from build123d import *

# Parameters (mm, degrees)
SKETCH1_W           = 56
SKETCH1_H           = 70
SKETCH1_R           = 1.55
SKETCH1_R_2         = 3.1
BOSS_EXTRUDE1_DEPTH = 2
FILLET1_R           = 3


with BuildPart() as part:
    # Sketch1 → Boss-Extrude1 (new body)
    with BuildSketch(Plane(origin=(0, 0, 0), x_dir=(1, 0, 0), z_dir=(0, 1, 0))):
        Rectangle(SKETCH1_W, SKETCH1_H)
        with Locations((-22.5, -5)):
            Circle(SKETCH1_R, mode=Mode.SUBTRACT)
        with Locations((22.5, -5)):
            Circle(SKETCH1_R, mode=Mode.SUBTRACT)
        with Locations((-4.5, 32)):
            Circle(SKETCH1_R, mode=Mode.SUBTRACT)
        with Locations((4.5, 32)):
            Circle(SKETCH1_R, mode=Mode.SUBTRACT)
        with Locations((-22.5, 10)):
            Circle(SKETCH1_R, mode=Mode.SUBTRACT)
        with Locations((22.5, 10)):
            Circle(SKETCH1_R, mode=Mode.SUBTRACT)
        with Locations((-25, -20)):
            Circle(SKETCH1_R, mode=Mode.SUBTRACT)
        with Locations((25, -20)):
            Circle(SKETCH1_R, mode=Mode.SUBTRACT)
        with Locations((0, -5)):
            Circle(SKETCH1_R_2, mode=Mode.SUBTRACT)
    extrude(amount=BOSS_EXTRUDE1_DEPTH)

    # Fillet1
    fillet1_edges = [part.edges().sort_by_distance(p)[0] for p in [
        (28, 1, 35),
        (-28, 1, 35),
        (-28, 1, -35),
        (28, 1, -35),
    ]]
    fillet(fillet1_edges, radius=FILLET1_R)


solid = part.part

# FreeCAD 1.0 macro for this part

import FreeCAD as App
import Part
import Sketcher

V = App.Vector
Q = App.Units.Quantity


def edges_at(feature, points):
    """Names of the edges that pass closest to the given points."""
    edges = feature.Shape.Edges
    near = lambda p: min(range(len(edges)), key=lambda i: edges[i].distToShape(Part.Vertex(*p))[0])
    return sorted({f"Edge{near(p) + 1}" for p in points})

doc = App.newDocument("Part")
body = doc.addObject("PartDesign::Body", "Body")

sketch1 = doc.addObject("Sketcher::SketchObject", "Sketch")
body.addObject(sketch1)
sketch1.AttachmentSupport = (doc.XZ_Plane, [""])
sketch1.MapMode = "FlatFace"
sketch1.addGeometry(Part.LineSegment(V(-28, -35, 0), V(-28, 35, 0)), False)
sketch1.addGeometry(Part.LineSegment(V(-28, 35, 0), V(28, 35, 0)), False)
sketch1.addGeometry(Part.LineSegment(V(28, 35, 0), V(28, -35, 0)), False)
sketch1.addGeometry(Part.LineSegment(V(28, -35, 0), V(-28, -35, 0)), False)
sketch1.addGeometry(Part.Circle(V(-25, 20, 0), V(0, 0, 1), 1.6), False)
sketch1.addGeometry(Part.Circle(V(-22.5, 5, 0), V(0, 0, 1), 1.6), False)
sketch1.addGeometry(Part.Circle(V(25, 20, 0), V(0, 0, 1), 1.6), False)
sketch1.addGeometry(Part.Circle(V(0, 5, 0), V(0, 0, 1), 3.1), False)
sketch1.addGeometry(Part.Circle(V(22.5, 5, 0), V(0, 0, 1), 1.6), False)
sketch1.addGeometry(Part.Circle(V(-22.5, -10, 0), V(0, 0, 1), 1.6), False)
sketch1.addGeometry(Part.Circle(V(-4.5, -32, 0), V(0, 0, 1), 1.6), False)
sketch1.addGeometry(Part.Circle(V(22.5, -10, 0), V(0, 0, 1), 1.6), False)
sketch1.addGeometry(Part.Circle(V(4.5, -32, 0), V(0, 0, 1), 1.6), False)
sketch1.addConstraint(Sketcher.Constraint("Coincident", 0, 2, 1, 1))
sketch1.addConstraint(Sketcher.Constraint("Coincident", 1, 2, 2, 1))
sketch1.addConstraint(Sketcher.Constraint("Coincident", 2, 2, 3, 1))
sketch1.addConstraint(Sketcher.Constraint("Coincident", 3, 2, 0, 1))
sketch1.addConstraint(Sketcher.Constraint("Vertical", 0))
sketch1.addConstraint(Sketcher.Constraint("Horizontal", 1))
sketch1.addConstraint(Sketcher.Constraint("Vertical", 2))
sketch1.addConstraint(Sketcher.Constraint("Horizontal", 3))
sketch1.addConstraint(Sketcher.Constraint("Equal", 4, 5))
sketch1.addConstraint(Sketcher.Constraint("Equal", 5, 6))
sketch1.addConstraint(Sketcher.Constraint("Equal", 6, 8))
sketch1.addConstraint(Sketcher.Constraint("Equal", 8, 9))
sketch1.addConstraint(Sketcher.Constraint("Equal", 9, 10))
sketch1.addConstraint(Sketcher.Constraint("Equal", 10, 11))
sketch1.addConstraint(Sketcher.Constraint("Equal", 11, 12))
sketch1.addConstraint(Sketcher.Constraint("Symmetric", 0, 2, 2, 2, -1, 1))
sketch1.addConstraint(Sketcher.Constraint("Symmetric", 4, 3, 6, 3, -2))
sketch1.addConstraint(Sketcher.Constraint("Symmetric", 5, 3, 8, 3, -2))
sketch1.addConstraint(Sketcher.Constraint("Symmetric", 9, 3, 11, 3, -2))
sketch1.addConstraint(Sketcher.Constraint("Symmetric", 10, 3, 12, 3, -2))
sketch1.addConstraint(Sketcher.Constraint("PointOnObject", 7, 3, -2))
sketch1.addConstraint(Sketcher.Constraint("Horizontal", 5, 3, 7, 3))
sketch1.addConstraint(Sketcher.Constraint("Vertical", 5, 3, 9, 3))
sketch1.addConstraint(Sketcher.Constraint("Diameter", 4, Q("3.1 mm")))
sketch1.addConstraint(Sketcher.Constraint("Diameter", 7, Q("6.2 mm")))
sketch1.addConstraint(Sketcher.Constraint("DistanceX", 1, 1, 1, 2, Q("56 mm")))
sketch1.addConstraint(Sketcher.Constraint("DistanceY", 0, 1, 0, 2, Q("70 mm")))
sketch1.addConstraint(Sketcher.Constraint("DistanceX", 4, 3, -1, 1, Q("25 mm")))
sketch1.addConstraint(Sketcher.Constraint("DistanceY", -1, 1, 4, 3, Q("20 mm")))
sketch1.addConstraint(Sketcher.Constraint("DistanceY", -1, 1, 5, 3, Q("5 mm")))
sketch1.addConstraint(Sketcher.Constraint("DistanceY", 9, 3, -1, 1, Q("10 mm")))
sketch1.addConstraint(Sketcher.Constraint("DistanceY", 10, 3, -1, 1, Q("32 mm")))
sketch1.addConstraint(Sketcher.Constraint("DistanceX", 5, 3, 8, 3, Q("45 mm")))
sketch1.addConstraint(Sketcher.Constraint("DistanceX", 9, 3, 10, 3, Q("18 mm")))
pad1 = doc.addObject("PartDesign::Pad", "Pad")
body.addObject(pad1)
pad1.Profile = sketch1
pad1.Length = 2
pad1.Reversed = True
doc.recompute()

fillet = doc.addObject("PartDesign::Fillet", "Fillet")
body.addObject(fillet)
fillet.Base = (pad1, edges_at(pad1, [
    (28, 1, 35),
    (-28, 1, 35),
    (-28, 1, -35),
    (28, 1, -35),
]))
fillet.Radius = 3

doc.recompute()
